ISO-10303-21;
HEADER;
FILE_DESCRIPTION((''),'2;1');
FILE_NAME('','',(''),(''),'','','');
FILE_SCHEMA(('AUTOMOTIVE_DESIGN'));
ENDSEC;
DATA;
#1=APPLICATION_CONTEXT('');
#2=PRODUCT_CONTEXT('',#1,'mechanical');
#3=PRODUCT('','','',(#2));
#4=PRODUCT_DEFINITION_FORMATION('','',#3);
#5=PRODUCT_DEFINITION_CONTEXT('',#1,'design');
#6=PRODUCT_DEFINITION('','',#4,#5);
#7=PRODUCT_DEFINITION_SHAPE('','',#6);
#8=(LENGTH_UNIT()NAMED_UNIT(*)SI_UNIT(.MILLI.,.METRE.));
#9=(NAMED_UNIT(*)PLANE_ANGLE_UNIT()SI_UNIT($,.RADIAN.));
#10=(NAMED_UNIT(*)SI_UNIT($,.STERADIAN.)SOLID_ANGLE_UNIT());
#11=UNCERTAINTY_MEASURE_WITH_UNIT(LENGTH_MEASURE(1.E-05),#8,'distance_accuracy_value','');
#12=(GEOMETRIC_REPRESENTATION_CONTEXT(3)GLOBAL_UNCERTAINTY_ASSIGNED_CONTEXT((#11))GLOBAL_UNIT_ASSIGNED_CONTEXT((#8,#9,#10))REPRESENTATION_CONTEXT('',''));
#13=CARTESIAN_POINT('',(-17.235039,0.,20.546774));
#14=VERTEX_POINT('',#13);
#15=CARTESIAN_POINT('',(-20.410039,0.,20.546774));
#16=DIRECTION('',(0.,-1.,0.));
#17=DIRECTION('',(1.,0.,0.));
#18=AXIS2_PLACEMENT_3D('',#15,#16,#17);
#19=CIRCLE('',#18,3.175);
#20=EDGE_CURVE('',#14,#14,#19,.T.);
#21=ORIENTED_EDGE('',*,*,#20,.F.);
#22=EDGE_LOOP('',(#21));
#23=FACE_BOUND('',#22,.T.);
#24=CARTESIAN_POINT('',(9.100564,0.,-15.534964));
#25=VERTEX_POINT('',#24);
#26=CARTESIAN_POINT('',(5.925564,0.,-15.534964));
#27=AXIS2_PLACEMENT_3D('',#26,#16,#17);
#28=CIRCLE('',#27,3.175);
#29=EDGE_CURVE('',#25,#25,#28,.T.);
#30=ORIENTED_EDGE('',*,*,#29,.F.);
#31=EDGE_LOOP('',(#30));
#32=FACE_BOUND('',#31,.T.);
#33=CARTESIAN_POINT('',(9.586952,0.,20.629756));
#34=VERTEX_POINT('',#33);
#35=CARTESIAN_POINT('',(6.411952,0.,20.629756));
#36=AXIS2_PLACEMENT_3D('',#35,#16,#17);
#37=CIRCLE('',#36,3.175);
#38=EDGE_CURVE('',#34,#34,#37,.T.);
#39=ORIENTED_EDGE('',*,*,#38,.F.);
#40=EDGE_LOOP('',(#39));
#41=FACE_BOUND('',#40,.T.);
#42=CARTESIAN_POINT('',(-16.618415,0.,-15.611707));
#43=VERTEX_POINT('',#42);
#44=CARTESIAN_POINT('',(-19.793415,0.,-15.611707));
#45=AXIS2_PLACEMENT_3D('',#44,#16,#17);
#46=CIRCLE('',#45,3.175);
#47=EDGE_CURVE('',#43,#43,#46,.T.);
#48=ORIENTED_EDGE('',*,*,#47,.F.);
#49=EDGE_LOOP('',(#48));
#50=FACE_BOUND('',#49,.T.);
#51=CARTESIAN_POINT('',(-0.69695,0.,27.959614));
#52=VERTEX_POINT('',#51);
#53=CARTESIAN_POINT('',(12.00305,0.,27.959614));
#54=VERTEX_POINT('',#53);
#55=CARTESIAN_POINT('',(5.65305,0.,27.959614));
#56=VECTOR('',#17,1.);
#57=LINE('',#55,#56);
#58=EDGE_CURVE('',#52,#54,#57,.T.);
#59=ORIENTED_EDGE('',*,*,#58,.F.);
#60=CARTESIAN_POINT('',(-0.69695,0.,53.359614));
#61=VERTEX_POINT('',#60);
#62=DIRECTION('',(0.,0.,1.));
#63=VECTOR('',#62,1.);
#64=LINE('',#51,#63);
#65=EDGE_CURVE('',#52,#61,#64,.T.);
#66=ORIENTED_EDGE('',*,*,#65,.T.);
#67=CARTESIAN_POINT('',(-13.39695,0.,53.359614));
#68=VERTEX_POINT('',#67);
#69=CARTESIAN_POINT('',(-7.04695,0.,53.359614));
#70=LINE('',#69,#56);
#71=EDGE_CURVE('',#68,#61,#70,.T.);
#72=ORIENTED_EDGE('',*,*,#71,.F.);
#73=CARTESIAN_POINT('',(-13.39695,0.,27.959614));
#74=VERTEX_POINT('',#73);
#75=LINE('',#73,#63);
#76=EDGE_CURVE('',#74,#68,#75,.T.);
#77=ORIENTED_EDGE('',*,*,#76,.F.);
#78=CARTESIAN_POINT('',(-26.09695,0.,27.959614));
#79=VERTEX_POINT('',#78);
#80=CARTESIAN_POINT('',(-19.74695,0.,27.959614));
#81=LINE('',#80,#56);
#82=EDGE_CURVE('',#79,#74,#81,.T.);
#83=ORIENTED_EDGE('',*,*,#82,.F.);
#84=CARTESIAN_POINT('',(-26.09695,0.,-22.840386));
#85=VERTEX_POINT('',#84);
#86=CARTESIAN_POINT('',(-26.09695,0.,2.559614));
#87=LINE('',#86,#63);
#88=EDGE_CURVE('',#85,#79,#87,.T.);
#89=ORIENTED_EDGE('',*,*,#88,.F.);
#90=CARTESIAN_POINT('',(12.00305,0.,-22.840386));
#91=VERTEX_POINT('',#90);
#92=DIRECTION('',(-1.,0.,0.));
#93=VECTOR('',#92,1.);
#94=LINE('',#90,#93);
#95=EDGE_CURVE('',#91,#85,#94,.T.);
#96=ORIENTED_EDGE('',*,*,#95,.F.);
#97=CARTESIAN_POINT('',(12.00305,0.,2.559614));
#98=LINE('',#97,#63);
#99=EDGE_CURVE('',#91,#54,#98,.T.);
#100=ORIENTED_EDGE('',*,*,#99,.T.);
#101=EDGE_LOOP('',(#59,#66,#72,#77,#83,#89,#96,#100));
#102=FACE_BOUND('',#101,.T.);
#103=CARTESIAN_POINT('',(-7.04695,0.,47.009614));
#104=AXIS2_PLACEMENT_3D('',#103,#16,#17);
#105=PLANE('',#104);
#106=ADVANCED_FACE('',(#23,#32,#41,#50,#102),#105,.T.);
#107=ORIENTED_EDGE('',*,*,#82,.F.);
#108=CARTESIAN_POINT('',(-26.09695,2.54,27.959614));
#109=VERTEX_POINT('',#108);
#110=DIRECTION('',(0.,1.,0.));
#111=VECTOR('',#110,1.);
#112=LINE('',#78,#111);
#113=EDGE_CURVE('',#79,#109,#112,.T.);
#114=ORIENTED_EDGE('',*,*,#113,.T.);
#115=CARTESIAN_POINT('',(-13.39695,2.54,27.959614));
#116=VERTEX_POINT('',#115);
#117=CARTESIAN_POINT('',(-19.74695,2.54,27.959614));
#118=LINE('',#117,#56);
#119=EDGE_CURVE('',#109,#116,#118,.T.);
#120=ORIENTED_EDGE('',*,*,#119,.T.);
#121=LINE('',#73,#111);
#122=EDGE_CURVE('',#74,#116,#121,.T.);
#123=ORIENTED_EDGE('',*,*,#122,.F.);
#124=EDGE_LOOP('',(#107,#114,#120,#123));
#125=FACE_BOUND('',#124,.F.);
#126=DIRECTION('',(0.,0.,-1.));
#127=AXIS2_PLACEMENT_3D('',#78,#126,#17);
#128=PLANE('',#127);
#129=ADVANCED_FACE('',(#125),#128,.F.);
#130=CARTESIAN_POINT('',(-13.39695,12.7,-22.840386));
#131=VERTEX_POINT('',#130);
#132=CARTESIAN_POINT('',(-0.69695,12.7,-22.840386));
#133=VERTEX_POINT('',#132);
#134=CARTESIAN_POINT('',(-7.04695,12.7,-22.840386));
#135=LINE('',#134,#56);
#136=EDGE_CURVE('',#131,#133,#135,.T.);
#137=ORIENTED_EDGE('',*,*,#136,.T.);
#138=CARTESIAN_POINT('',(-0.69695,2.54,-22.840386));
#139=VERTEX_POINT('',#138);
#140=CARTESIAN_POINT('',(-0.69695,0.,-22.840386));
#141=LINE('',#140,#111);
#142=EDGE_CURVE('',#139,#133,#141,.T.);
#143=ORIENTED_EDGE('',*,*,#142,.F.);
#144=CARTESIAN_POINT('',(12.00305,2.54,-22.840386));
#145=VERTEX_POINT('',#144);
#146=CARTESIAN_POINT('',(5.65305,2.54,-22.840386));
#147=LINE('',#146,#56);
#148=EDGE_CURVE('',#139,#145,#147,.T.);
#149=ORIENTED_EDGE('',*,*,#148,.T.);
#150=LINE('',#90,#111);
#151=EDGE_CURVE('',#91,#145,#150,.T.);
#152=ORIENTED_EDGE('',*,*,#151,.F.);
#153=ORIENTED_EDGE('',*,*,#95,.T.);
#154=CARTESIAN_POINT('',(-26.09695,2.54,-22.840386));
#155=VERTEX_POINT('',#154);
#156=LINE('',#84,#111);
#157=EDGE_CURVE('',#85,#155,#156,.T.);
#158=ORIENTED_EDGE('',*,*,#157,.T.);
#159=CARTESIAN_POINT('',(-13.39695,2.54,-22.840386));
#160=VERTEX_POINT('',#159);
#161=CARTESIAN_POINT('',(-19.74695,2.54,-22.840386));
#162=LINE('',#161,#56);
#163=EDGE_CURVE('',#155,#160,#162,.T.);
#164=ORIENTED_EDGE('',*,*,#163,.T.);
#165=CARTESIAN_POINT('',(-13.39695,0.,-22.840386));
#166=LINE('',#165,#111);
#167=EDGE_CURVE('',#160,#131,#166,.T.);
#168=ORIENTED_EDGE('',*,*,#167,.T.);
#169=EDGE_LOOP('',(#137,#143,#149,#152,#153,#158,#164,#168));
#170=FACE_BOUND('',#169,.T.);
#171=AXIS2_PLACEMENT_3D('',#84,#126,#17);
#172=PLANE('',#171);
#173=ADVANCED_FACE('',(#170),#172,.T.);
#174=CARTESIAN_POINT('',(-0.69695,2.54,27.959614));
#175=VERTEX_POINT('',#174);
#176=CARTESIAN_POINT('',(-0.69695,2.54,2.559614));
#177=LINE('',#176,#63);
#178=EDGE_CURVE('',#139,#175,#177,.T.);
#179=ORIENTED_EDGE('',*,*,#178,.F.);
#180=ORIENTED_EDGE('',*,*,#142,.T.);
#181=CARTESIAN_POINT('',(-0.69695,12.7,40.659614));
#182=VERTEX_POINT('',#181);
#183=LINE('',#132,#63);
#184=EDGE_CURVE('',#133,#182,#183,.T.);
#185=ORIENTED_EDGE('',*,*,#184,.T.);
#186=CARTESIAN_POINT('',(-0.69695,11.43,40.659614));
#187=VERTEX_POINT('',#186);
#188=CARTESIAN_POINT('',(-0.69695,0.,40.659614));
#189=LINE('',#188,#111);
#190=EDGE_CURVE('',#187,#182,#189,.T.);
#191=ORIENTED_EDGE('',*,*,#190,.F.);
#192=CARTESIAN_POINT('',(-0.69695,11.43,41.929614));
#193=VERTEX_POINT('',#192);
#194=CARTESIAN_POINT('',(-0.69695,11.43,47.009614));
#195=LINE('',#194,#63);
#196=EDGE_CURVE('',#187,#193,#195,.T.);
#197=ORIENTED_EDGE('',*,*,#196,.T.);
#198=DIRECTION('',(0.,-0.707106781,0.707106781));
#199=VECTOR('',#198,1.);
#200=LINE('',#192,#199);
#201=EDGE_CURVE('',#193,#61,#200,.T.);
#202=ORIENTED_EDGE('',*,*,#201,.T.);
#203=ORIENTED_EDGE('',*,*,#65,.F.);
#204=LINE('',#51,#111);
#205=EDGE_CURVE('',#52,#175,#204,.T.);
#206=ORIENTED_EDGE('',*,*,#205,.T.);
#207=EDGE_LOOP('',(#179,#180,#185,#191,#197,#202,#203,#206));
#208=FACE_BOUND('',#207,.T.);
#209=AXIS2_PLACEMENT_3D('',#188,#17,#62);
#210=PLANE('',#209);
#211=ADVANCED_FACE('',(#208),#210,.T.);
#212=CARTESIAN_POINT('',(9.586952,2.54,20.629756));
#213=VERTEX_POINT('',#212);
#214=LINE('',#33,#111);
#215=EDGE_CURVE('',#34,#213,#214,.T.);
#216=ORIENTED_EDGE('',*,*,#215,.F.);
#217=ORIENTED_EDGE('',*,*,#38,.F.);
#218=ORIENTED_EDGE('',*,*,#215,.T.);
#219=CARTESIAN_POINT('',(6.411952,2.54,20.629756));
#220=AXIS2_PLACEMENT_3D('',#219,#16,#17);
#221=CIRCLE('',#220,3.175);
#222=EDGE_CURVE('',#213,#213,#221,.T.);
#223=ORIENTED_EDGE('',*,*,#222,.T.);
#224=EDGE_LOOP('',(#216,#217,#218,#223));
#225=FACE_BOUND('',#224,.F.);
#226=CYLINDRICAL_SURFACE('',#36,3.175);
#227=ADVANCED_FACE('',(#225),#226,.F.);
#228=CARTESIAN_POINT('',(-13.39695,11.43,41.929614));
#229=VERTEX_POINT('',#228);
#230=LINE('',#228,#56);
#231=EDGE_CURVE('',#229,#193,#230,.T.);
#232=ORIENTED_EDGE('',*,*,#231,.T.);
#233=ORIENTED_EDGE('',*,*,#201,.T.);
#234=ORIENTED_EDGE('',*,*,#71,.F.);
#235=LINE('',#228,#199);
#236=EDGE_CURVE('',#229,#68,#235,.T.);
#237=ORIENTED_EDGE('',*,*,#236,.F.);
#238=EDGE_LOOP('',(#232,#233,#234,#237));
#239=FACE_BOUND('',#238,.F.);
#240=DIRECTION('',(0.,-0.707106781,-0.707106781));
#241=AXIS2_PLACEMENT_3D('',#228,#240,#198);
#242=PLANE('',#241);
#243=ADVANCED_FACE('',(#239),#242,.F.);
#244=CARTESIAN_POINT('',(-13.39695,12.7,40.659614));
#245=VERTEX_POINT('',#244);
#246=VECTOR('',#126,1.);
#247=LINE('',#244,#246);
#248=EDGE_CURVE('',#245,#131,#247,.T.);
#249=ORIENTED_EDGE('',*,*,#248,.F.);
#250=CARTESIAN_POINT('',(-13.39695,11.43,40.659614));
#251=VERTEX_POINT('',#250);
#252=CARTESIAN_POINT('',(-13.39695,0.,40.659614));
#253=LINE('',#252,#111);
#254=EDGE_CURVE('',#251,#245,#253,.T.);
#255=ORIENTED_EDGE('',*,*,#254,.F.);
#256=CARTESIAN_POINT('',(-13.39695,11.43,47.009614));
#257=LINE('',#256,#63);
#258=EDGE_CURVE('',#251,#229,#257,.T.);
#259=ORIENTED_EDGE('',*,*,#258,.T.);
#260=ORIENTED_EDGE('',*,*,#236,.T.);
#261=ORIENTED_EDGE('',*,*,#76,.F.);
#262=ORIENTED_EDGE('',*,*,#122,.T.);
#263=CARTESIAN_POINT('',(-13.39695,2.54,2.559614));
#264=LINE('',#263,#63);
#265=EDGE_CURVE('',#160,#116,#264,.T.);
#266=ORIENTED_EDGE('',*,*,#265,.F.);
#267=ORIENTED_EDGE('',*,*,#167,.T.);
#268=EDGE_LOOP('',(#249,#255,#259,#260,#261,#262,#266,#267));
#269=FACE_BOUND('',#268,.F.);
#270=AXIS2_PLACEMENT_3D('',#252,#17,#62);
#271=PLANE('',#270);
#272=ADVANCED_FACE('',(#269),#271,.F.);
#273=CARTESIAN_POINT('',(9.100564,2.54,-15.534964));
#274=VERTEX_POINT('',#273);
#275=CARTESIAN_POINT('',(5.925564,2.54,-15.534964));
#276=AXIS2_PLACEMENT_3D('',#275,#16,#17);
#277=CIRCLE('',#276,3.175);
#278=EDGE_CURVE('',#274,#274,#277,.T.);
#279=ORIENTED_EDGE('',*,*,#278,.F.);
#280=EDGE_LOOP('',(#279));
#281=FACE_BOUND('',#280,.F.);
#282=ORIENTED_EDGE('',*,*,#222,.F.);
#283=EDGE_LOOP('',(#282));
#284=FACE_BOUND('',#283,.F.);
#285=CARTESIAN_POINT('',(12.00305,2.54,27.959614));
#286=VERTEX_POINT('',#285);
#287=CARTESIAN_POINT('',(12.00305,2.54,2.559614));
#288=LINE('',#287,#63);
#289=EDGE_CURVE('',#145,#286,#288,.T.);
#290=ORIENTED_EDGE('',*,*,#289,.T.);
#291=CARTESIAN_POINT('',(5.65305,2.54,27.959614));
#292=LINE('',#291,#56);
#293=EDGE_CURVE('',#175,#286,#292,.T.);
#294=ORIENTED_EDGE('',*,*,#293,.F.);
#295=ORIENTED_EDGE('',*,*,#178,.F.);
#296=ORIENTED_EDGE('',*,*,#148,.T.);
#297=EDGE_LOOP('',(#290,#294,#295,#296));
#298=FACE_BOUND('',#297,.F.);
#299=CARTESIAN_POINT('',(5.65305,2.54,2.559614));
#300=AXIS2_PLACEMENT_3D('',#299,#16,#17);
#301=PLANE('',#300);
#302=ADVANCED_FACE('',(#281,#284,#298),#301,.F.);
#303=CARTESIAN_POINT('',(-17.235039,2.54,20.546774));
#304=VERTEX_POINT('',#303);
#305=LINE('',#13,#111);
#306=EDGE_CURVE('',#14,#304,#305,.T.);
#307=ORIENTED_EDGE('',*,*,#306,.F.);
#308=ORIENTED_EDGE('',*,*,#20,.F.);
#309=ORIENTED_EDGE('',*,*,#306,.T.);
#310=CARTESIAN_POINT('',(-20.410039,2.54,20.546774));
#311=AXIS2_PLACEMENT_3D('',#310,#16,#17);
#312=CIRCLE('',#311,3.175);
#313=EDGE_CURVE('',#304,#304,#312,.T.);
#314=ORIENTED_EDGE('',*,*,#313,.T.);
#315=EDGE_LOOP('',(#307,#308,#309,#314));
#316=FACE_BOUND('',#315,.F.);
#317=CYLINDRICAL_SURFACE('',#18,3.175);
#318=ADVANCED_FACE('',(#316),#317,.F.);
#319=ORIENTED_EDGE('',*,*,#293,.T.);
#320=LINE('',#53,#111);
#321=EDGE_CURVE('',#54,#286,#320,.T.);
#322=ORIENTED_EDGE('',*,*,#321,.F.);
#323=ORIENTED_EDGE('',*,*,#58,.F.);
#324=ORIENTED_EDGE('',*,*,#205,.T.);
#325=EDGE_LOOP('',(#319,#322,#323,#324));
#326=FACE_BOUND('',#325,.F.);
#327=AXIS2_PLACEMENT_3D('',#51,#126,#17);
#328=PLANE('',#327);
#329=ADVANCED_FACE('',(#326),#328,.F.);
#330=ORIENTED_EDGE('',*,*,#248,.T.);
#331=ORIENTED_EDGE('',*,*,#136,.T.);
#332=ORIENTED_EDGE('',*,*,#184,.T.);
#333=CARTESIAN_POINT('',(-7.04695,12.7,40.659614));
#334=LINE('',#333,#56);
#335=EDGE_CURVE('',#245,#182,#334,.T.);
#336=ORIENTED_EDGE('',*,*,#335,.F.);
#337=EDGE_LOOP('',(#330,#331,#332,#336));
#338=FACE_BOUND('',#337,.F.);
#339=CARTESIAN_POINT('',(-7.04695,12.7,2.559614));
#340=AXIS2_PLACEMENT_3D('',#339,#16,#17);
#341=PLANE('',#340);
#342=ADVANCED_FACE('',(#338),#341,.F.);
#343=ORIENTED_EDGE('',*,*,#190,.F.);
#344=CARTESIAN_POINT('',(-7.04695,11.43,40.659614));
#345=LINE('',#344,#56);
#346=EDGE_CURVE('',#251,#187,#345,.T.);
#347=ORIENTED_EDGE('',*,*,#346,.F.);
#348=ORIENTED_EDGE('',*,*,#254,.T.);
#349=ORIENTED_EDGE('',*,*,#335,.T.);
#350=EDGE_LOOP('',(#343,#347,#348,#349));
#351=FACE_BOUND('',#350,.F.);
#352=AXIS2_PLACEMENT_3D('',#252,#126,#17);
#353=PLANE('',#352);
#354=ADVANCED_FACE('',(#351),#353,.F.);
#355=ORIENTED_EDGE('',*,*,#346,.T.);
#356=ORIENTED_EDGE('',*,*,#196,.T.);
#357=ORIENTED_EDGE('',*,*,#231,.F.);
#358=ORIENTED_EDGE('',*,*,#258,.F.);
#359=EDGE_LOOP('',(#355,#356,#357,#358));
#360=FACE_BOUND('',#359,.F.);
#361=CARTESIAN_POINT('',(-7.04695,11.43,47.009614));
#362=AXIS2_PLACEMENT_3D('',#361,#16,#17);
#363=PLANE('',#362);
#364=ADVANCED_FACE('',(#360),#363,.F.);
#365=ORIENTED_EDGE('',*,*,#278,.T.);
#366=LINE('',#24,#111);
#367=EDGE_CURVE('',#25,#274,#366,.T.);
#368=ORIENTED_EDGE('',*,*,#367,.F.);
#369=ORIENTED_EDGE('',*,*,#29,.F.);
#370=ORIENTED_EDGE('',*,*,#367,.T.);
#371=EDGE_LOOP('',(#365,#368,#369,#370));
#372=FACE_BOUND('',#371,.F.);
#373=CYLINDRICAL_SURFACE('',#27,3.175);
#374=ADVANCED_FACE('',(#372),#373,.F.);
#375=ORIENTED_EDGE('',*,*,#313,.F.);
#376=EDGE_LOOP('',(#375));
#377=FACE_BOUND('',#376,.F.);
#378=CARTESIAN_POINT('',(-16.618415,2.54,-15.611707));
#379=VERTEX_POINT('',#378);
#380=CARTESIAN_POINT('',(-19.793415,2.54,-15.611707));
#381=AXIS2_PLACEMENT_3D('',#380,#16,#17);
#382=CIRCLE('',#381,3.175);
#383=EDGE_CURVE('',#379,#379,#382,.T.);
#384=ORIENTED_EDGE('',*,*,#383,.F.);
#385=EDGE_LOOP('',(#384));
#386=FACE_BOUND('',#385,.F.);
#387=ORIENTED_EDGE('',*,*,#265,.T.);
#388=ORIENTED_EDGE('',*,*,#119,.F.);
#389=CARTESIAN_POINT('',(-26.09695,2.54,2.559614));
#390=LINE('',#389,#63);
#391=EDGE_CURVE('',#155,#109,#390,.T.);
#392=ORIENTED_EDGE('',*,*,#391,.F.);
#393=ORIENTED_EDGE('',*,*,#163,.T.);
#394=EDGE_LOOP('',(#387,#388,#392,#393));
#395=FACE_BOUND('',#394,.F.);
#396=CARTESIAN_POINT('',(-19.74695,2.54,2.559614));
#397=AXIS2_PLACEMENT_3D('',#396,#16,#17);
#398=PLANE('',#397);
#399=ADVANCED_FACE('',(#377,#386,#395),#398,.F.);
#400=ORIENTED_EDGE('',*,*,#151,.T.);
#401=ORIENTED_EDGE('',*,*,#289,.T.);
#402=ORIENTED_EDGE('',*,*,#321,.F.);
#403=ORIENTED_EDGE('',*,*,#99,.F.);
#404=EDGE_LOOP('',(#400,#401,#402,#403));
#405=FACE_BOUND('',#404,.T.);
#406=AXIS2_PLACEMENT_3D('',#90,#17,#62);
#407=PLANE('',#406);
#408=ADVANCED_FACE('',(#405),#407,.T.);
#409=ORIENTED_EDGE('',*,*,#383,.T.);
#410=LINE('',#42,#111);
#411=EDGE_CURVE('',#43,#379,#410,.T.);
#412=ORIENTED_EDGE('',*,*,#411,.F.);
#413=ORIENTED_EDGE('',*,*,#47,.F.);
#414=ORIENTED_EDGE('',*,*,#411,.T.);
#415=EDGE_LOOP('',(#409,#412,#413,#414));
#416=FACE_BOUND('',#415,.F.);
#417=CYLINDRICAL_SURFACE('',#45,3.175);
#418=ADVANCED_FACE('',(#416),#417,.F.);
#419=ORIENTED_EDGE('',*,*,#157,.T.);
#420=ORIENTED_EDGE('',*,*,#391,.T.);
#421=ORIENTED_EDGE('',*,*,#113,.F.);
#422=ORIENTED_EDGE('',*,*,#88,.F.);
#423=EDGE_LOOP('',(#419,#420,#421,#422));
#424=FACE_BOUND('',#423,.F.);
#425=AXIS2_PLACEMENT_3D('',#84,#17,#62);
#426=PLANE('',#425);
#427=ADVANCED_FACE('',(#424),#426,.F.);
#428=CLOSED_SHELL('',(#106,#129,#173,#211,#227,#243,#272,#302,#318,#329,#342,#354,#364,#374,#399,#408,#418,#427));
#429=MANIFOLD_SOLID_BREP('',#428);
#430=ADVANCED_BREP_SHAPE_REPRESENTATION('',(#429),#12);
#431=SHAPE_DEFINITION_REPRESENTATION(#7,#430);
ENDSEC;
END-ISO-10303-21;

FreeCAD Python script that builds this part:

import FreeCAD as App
import Part
import Sketcher

V = App.Vector
Q = App.Units.Quantity


def add_polygon(sketch, points):
    """Adds a closed chain of lines whose ends are joined by coincident constraints."""
    first, n = sketch.GeometryCount, len(points)
    for a, b in zip(points, points[1:] + points[:1]):
        sketch.addGeometry(Part.LineSegment(App.Vector(*a, 0), App.Vector(*b, 0)), False)
    for i in range(n):
        sketch.addConstraint(Sketcher.Constraint("Coincident", first + i, 2, first + (i + 1) % n, 1))

doc = App.newDocument("Part")
params = doc.addObject("Spreadsheet::Sheet", "Params")
for row, (alias, value) in enumerate([
    ("sketch1_width", "0.5 in"),
    ("sketch1_height", "2.5 in"),
    ("pad1_length", "0.5 in"),
    ("sketch2_diameter", "0.25 in"),
    ("sketch2_height", "2 in"),
    ("sketch2_width", "0.5 in"),
    ("pad2_length", "0.1 in"),
    ("sketch3_width", "0.5 in"),
    ("pad3_length", "0.45 in"),
    ("sketch4_width", "0.45 in"),
    ("pocket1_length", "0.5 in"),
], start=1):
    params.set(f"A{row}", alias)
    params.set(f"B{row}", "=" + value)
    params.setAlias(f"B{row}", alias)

body = doc.addObject("PartDesign::Body", "Body")

# Sketch on XZ plane
sketch1 = body.newObject("Sketcher::SketchObject", "Sketch")
sketch1.AttachmentSupport = (doc.getObject("XZ_Plane"), [""])
sketch1.MapMode = "FlatFace"
add_polygon(sketch1, [(-13.39695, -22.840386), (-0.69695, -22.840386), (-0.69695, 40.659614), (-13.39695, 40.659614)])  # lines 0-3
sketch1.addConstraint([
    Sketcher.Constraint("Horizontal", 0),
    Sketcher.Constraint("Vertical", 1),
    Sketcher.Constraint("Horizontal", 2),
    Sketcher.Constraint("Vertical", 3),
    Sketcher.Constraint("DistanceX", 0, 1, 0, 2, Q("0.5 in")),
    Sketcher.Constraint("DistanceY", 1, 1, 1, 2, Q("2.5 in")),
    Sketcher.Constraint("DistanceX", 0, 2, -1, 1, 0.69695),
    Sketcher.Constraint("DistanceY", 0, 2, -1, 1, 22.840386),
])
sketch1.setExpression("Constraints[8]", "Params.sketch1_width")
sketch1.setExpression("Constraints[9]", "Params.sketch1_height")
pad1 = body.newObject("PartDesign::Pad", "Pad")
pad1.Profile = sketch1
pad1.setExpression("Length", "Params.pad1_length")
pad1.Reversed = True

# Sketch on XZ plane
sketch2 = body.newObject("Sketcher::SketchObject", "Sketch001")
sketch2.AttachmentSupport = (doc.getObject("XZ_Plane"), [""])
sketch2.MapMode = "FlatFace"
add_polygon(sketch2, [(-26.09695, 27.959614), (-26.09695, -22.840386), (-13.39695, -22.840386), (-13.39695, 27.959614)])  # lines 0-3
sketch2.addGeometry(Part.Circle(V(-19.793415, -15.611707, 0), V(0, 0, 1), 3.175), False)  # 4
sketch2.addGeometry(Part.Circle(V(-20.410039, 20.546774, 0), V(0, 0, 1), 3.175), False)  # 5
add_polygon(sketch2, [(-0.69695, 27.959614), (-0.69695, -22.840386), (12.00305, -22.840386), (12.00305, 27.959614)])  # lines 6-9
sketch2.addGeometry(Part.Circle(V(5.925564, -15.534964, 0), V(0, 0, 1), 3.175), False)  # 10
sketch2.addGeometry(Part.Circle(V(6.411952, 20.629756, 0), V(0, 0, 1), 3.175), False)  # 11
sketch2.addConstraint([
    Sketcher.Constraint("Vertical", 0),
    Sketcher.Constraint("Horizontal", 1),
    Sketcher.Constraint("Vertical", 2),
    Sketcher.Constraint("Horizontal", 3),
    Sketcher.Constraint("Vertical", 6),
    Sketcher.Constraint("Horizontal", 7),
    Sketcher.Constraint("Vertical", 8),
    Sketcher.Constraint("Horizontal", 9),
    Sketcher.Constraint("Equal", 4, 5),
    Sketcher.Constraint("Equal", 5, 10),
    Sketcher.Constraint("Equal", 10, 11),
    Sketcher.Constraint("Horizontal", 1, 2, 6, 2),
    Sketcher.Constraint("Horizontal", 3, 2, 8, 2),
    Sketcher.Constraint("Equal", 3, 7),
    Sketcher.Constraint("Diameter", 4, Q("0.25 in")),
    Sketcher.Constraint("DistanceY", 0, 2, 0, 1, Q("2 in")),
    Sketcher.Constraint("DistanceX", 1, 1, 1, 2, Q("0.5 in")),
    Sketcher.Constraint("DistanceX", 0, 2, 6, 2, Q("1 in")),
    Sketcher.Constraint("DistanceX", 0, 2, 11, 3, 32.508902),
    Sketcher.Constraint("DistanceX", 5, 3, -1, 1, 20.410039),
    Sketcher.Constraint("DistanceX", -1, 1, 11, 3, 6.411952),
    Sketcher.Constraint("DistanceY", 4, 3, 5, 3, 36.158481),
    Sketcher.Constraint("DistanceX", 4, 3, 10, 3, 25.71898),
    Sketcher.Constraint("DistanceY", 10, 3, 11, 3, 36.16472),
    Sketcher.Constraint("DistanceY", 0, 2, 4, 3, 7.228679),
    Sketcher.Constraint("DistanceX", 4, 3, -1, 1, 19.793415),
    Sketcher.Constraint("DistanceY", 4, 3, -1, 1, 15.611707),
    Sketcher.Constraint("DistanceY", 10, 3, -1, 1, 15.534964),
])
sketch2.setExpression("Constraints[22]", "Params.sketch2_diameter")
sketch2.setExpression("Constraints[23]", "Params.sketch2_height")
sketch2.setExpression("Constraints[24]", "Params.sketch2_width")
pad2 = body.newObject("PartDesign::Pad", "Pad001")
pad2.Profile = sketch2
pad2.setExpression("Length", "Params.pad2_length")
pad2.Reversed = True

# Sketch on XZ plane
sketch3 = body.newObject("Sketcher::SketchObject", "Sketch002")
sketch3.AttachmentSupport = (doc.getObject("XZ_Plane"), [""])
sketch3.MapMode = "FlatFace"
add_polygon(sketch3, [(-13.39695, 53.359614), (-13.39695, 40.659614), (-0.69695, 40.659614), (-0.69695, 53.359614)])  # lines 0-3
sketch3.addConstraint([
    Sketcher.Constraint("Vertical", 0),
    Sketcher.Constraint("Horizontal", 1),
    Sketcher.Constraint("Vertical", 2),
    Sketcher.Constraint("Horizontal", 3),
    Sketcher.Constraint("Equal", 3, 0),
    Sketcher.Constraint("DistanceX", 1, 1, 1, 2, Q("0.5 in")),
    Sketcher.Constraint("DistanceX", 0, 2, -1, 1, 13.39695),
    Sketcher.Constraint("DistanceY", -1, 1, 0, 2, 40.659614),
])
sketch3.setExpression("Constraints[9]", "Params.sketch3_width")
pad3 = body.newObject("PartDesign::Pad", "Pad002")
pad3.Profile = sketch3
pad3.setExpression("Length", "Params.pad3_length")
pad3.Reversed = True

# Sketch on YZ plane
sketch4 = body.newObject("Sketcher::SketchObject", "Sketch003")
sketch4.AttachmentSupport = (doc.getObject("YZ_Plane"), [""])
sketch4.MapMode = "FlatFace"
sketch4.AttachmentOffset = App.Placement(V(0, 0, -13.39695), App.Rotation())
add_polygon(sketch4, [(0, 53.359614), (11.43, 53.359614), (11.43, 41.929614)])  # lines 0-2
sketch4.addConstraint([
    Sketcher.Constraint("Horizontal", 0),
    Sketcher.Constraint("Vertical", 1),
    Sketcher.Constraint("PointOnObject", 2, 2, -2),
    Sketcher.Constraint("Equal", 0, 1),
    Sketcher.Constraint("DistanceX", 0, 1, 0, 2, Q("0.45 in")),
    Sketcher.Constraint("DistanceY", -1, 1, 0, 2, 53.359614),
])
sketch4.setExpression("Constraints[7]", "Params.sketch4_width")
pocket1 = body.newObject("PartDesign::Pocket", "Pocket")
pocket1.Profile = sketch4
pocket1.setExpression("Length", "Params.pocket1_length")
pocket1.Reversed = True

doc.recompute()
